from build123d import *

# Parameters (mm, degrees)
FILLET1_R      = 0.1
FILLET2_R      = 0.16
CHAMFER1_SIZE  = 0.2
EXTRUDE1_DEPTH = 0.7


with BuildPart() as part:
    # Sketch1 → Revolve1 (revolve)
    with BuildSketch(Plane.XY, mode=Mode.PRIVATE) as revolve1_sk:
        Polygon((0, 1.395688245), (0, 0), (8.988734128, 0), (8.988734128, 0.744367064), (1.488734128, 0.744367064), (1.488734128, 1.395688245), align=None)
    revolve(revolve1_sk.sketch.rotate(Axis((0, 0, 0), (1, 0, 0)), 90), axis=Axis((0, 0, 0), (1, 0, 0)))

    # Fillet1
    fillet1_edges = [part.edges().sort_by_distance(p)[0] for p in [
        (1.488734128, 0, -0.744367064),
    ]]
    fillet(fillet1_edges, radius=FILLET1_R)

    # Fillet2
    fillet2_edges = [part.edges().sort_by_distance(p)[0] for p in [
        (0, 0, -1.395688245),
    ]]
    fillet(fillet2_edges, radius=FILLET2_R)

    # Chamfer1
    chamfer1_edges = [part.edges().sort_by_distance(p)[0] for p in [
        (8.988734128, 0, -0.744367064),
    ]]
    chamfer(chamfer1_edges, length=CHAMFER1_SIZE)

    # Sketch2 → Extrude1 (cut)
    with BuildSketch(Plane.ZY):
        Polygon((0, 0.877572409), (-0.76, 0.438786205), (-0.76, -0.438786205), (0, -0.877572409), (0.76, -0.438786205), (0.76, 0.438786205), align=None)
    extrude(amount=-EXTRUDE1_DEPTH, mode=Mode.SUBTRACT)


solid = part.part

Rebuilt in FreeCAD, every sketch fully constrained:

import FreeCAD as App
import Part
import Sketcher
Q = App.Units.Quantity


def edges_at(feature, points):
    """Names of the edges that pass closest to the given points."""
    edges = feature.Shape.Edges
    near = lambda p: min(range(len(edges)), key=lambda i: edges[i].distToShape(Part.Vertex(*p))[0])
    return sorted({f"Edge{near(p) + 1}" for p in points})


def add_polygon(sketch, points):
    """Adds a closed chain of lines whose ends are joined by coincident constraints."""
    first, n = sketch.GeometryCount, len(points)
    for a, b in zip(points, points[1:] + points[:1]):
        sketch.addGeometry(Part.LineSegment(App.Vector(*a, 0), App.Vector(*b, 0)), False)
    for i in range(n):
        sketch.addConstraint(Sketcher.Constraint("Coincident", first + i, 2, first + (i + 1) % n, 1))

doc = App.newDocument("Part")
params = doc.addObject("Spreadsheet::Sheet", "Params")
for row, (alias, value) in enumerate([
    ("sketch1_width", "7.5 mm"),
    ("revolution_angle", "360 deg"),
    ("fillet_radius", "0.1 mm"),
    ("fillet2_radius", "0.16 mm"),
    ("chamfer_size", "0.2 mm"),
    ("pocket1_length", "0.7 mm"),
], start=1):
    params.set(f"A{row}", alias)
    params.set(f"B{row}", "=" + value)
    params.setAlias(f"B{row}", alias)

body = doc.addObject("PartDesign::Body", "Body")

# Sketch on XY plane
sketch1 = body.newObject("Sketcher::SketchObject", "Sketch")
sketch1.AttachmentSupport = (doc.getObject("XY_Plane"), [""])
sketch1.MapMode = "FlatFace"
add_polygon(sketch1, [(0, 1.4), (0, 0), (9, 0), (9, 0.7), (1.5, 0.7), (1.5, 1.4)])  # lines 0-5
sketch1.addConstraint([
    Sketcher.Constraint("Vertical", 0),
    Sketcher.Constraint("Horizontal", 1),
    Sketcher.Constraint("Vertical", 2),
    Sketcher.Constraint("Horizontal", 3),
    Sketcher.Constraint("Vertical", 4),
    Sketcher.Constraint("Horizontal", 5),
    Sketcher.Constraint("Coincident", 0, 2, -1, 1),
    Sketcher.Constraint("DistanceX", 3, 2, 3, 1, Q("7.5 mm")),
    Sketcher.Constraint("DistanceY", 0, 2, 0, 1, Q("1.395688 mm")),
    Sketcher.Constraint("DistanceY", 4, 1, 4, 2, Q("0.651321 mm")),
    Sketcher.Constraint("DistanceX", 1, 1, 1, 2, Q("8.988734 mm")),
])
sketch1.setExpression("Constraints[13]", "Params.sketch1_width")
revolution = body.newObject("PartDesign::Revolution", "Revolution")
revolution.Profile = sketch1
revolution.ReferenceAxis = (sketch1, ["H_Axis"])
revolution.setExpression("Angle", "Params.revolution_angle")
doc.recompute()

fillet = body.newObject("PartDesign::Fillet", "Fillet")
fillet.Base = (revolution, edges_at(revolution, [(1.489, 0, -0.744)]))
fillet.setExpression("Radius", "Params.fillet_radius")
doc.recompute()

fillet2 = body.newObject("PartDesign::Fillet", "Fillet001")
fillet2.Base = (fillet, edges_at(fillet, [(0, 0, -1.396)]))
fillet2.setExpression("Radius", "Params.fillet2_radius")
doc.recompute()

chamfer = body.newObject("PartDesign::Chamfer", "Chamfer")
chamfer.Base = (fillet2, edges_at(fillet2, [(8.989, 0, -0.744)]))
chamfer.setExpression("Size", "Params.chamfer_size")

# Sketch on YZ plane
sketch2 = body.newObject("Sketcher::SketchObject", "Sketch001")
sketch2.AttachmentSupport = (doc.getObject("YZ_Plane"), [""])
sketch2.MapMode = "FlatFace"
add_polygon(sketch2, [(0.9, 0), (0.4, -0.8), (-0.4, -0.8), (-0.9, 0), (-0.4, 0.8), (0.4, 0.8)])  # lines 0-5
sketch2.addConstraint([
    Sketcher.Constraint("Horizontal", 1),
    Sketcher.Constraint("Horizontal", 4),
    Sketcher.Constraint("Symmetric", 0, 2, 3, 2, -1, 1),
    Sketcher.Constraint("Symmetric", 2, 2, 5, 2, -1, 1),
    Sketcher.Constraint("PointOnObject", 2, 2, -1),
    Sketcher.Constraint("Parallel", 2, 5),
    Sketcher.Constraint("Vertical", 1, 2, 3, 2),
    Sketcher.Constraint("Angle", 0, Q("-120 deg")),
    Sketcher.Constraint("DistanceY", 0, 2, -1, 1, Q("0.76 mm")),
    Sketcher.Constraint("DistanceX", 1, 2, 1, 1, Q("0.877572 mm")),
])
pocket1 = body.newObject("PartDesign::Pocket", "Pocket")
pocket1.Profile = sketch2
pocket1.setExpression("Length", "Params.pocket1_length")
pocket1.Reversed = True

doc.recompute()
